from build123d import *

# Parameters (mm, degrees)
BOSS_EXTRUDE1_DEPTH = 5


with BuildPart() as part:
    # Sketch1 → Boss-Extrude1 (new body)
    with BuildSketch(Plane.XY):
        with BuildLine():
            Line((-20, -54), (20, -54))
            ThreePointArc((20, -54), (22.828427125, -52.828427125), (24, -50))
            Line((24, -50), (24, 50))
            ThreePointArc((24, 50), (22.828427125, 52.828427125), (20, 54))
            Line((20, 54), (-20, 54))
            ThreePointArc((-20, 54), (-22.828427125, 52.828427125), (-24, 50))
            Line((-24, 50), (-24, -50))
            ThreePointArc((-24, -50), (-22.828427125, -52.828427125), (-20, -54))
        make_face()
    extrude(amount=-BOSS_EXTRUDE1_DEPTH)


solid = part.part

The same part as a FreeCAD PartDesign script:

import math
import FreeCAD as App
import Part
import Sketcher

V = App.Vector
Q = App.Units.Quantity

doc = App.newDocument("Part")
body = doc.addObject("PartDesign::Body", "Body")

# Sketch on XY plane
sketch1 = doc.addObject("Sketcher::SketchObject", "Sketch")
body.addObject(sketch1)
sketch1.AttachmentSupport = (doc.XY_Plane, [""])
sketch1.MapMode = "FlatFace"
sketch1.addGeometry(Part.LineSegment(V(-20, -54, 0), V(20, -54, 0)), False)
sketch1.addGeometry(Part.ArcOfCircle(Part.Circle(V(20, -50, 0), V(0, 0, 1), 4), math.radians(-90), math.radians(0)), False)
sketch1.addGeometry(Part.LineSegment(V(24, -50, 0), V(24, 50, 0)), False)
sketch1.addGeometry(Part.ArcOfCircle(Part.Circle(V(20, 50, 0), V(0, 0, 1), 4), math.radians(0), math.radians(90)), False)
sketch1.addGeometry(Part.LineSegment(V(20, 54, 0), V(-20, 54, 0)), False)
sketch1.addGeometry(Part.ArcOfCircle(Part.Circle(V(-20, 50, 0), V(0, 0, 1), 4), math.radians(90), math.radians(180)), False)
sketch1.addGeometry(Part.LineSegment(V(-24, 50, 0), V(-24, -50, 0)), False)
sketch1.addGeometry(Part.ArcOfCircle(Part.Circle(V(-20, -50, 0), V(0, 0, 1), 4), math.radians(180), math.radians(270)), False)
sketch1.addConstraint(Sketcher.Constraint("Tangent", 0, 2, 1, 1))
sketch1.addConstraint(Sketcher.Constraint("Tangent", 1, 2, 2, 1))
sketch1.addConstraint(Sketcher.Constraint("Tangent", 2, 2, 3, 1))
sketch1.addConstraint(Sketcher.Constraint("Tangent", 3, 2, 4, 1))
sketch1.addConstraint(Sketcher.Constraint("Tangent", 4, 2, 5, 1))
sketch1.addConstraint(Sketcher.Constraint("Tangent", 5, 2, 6, 1))
sketch1.addConstraint(Sketcher.Constraint("Tangent", 6, 2, 7, 1))
sketch1.addConstraint(Sketcher.Constraint("Tangent", 7, 2, 0, 1))
sketch1.addConstraint(Sketcher.Constraint("Horizontal", 0))
sketch1.addConstraint(Sketcher.Constraint("Vertical", 2))
sketch1.addConstraint(Sketcher.Constraint("Horizontal", 4))
sketch1.addConstraint(Sketcher.Constraint("Vertical", 6))
sketch1.addConstraint(Sketcher.Constraint("Equal", 1, 3))
sketch1.addConstraint(Sketcher.Constraint("Equal", 3, 5))
sketch1.addConstraint(Sketcher.Constraint("Equal", 5, 7))
sketch1.addConstraint(Sketcher.Constraint("Symmetric", 1, 3, 5, 3, -1, 1))
sketch1.addConstraint(Sketcher.Constraint("Radius", 1, Q("4 mm")))
sketch1.addConstraint(Sketcher.Constraint("DistanceX", 0, 1, 0, 2, Q("40 mm")))
sketch1.addConstraint(Sketcher.Constraint("DistanceY", 2, 1, 2, 2, Q("100 mm")))
pad1 = doc.addObject("PartDesign::Pad", "Pad")
body.addObject(pad1)
pad1.Profile = sketch1
pad1.Length = 5
pad1.Reversed = True

doc.recompute()
